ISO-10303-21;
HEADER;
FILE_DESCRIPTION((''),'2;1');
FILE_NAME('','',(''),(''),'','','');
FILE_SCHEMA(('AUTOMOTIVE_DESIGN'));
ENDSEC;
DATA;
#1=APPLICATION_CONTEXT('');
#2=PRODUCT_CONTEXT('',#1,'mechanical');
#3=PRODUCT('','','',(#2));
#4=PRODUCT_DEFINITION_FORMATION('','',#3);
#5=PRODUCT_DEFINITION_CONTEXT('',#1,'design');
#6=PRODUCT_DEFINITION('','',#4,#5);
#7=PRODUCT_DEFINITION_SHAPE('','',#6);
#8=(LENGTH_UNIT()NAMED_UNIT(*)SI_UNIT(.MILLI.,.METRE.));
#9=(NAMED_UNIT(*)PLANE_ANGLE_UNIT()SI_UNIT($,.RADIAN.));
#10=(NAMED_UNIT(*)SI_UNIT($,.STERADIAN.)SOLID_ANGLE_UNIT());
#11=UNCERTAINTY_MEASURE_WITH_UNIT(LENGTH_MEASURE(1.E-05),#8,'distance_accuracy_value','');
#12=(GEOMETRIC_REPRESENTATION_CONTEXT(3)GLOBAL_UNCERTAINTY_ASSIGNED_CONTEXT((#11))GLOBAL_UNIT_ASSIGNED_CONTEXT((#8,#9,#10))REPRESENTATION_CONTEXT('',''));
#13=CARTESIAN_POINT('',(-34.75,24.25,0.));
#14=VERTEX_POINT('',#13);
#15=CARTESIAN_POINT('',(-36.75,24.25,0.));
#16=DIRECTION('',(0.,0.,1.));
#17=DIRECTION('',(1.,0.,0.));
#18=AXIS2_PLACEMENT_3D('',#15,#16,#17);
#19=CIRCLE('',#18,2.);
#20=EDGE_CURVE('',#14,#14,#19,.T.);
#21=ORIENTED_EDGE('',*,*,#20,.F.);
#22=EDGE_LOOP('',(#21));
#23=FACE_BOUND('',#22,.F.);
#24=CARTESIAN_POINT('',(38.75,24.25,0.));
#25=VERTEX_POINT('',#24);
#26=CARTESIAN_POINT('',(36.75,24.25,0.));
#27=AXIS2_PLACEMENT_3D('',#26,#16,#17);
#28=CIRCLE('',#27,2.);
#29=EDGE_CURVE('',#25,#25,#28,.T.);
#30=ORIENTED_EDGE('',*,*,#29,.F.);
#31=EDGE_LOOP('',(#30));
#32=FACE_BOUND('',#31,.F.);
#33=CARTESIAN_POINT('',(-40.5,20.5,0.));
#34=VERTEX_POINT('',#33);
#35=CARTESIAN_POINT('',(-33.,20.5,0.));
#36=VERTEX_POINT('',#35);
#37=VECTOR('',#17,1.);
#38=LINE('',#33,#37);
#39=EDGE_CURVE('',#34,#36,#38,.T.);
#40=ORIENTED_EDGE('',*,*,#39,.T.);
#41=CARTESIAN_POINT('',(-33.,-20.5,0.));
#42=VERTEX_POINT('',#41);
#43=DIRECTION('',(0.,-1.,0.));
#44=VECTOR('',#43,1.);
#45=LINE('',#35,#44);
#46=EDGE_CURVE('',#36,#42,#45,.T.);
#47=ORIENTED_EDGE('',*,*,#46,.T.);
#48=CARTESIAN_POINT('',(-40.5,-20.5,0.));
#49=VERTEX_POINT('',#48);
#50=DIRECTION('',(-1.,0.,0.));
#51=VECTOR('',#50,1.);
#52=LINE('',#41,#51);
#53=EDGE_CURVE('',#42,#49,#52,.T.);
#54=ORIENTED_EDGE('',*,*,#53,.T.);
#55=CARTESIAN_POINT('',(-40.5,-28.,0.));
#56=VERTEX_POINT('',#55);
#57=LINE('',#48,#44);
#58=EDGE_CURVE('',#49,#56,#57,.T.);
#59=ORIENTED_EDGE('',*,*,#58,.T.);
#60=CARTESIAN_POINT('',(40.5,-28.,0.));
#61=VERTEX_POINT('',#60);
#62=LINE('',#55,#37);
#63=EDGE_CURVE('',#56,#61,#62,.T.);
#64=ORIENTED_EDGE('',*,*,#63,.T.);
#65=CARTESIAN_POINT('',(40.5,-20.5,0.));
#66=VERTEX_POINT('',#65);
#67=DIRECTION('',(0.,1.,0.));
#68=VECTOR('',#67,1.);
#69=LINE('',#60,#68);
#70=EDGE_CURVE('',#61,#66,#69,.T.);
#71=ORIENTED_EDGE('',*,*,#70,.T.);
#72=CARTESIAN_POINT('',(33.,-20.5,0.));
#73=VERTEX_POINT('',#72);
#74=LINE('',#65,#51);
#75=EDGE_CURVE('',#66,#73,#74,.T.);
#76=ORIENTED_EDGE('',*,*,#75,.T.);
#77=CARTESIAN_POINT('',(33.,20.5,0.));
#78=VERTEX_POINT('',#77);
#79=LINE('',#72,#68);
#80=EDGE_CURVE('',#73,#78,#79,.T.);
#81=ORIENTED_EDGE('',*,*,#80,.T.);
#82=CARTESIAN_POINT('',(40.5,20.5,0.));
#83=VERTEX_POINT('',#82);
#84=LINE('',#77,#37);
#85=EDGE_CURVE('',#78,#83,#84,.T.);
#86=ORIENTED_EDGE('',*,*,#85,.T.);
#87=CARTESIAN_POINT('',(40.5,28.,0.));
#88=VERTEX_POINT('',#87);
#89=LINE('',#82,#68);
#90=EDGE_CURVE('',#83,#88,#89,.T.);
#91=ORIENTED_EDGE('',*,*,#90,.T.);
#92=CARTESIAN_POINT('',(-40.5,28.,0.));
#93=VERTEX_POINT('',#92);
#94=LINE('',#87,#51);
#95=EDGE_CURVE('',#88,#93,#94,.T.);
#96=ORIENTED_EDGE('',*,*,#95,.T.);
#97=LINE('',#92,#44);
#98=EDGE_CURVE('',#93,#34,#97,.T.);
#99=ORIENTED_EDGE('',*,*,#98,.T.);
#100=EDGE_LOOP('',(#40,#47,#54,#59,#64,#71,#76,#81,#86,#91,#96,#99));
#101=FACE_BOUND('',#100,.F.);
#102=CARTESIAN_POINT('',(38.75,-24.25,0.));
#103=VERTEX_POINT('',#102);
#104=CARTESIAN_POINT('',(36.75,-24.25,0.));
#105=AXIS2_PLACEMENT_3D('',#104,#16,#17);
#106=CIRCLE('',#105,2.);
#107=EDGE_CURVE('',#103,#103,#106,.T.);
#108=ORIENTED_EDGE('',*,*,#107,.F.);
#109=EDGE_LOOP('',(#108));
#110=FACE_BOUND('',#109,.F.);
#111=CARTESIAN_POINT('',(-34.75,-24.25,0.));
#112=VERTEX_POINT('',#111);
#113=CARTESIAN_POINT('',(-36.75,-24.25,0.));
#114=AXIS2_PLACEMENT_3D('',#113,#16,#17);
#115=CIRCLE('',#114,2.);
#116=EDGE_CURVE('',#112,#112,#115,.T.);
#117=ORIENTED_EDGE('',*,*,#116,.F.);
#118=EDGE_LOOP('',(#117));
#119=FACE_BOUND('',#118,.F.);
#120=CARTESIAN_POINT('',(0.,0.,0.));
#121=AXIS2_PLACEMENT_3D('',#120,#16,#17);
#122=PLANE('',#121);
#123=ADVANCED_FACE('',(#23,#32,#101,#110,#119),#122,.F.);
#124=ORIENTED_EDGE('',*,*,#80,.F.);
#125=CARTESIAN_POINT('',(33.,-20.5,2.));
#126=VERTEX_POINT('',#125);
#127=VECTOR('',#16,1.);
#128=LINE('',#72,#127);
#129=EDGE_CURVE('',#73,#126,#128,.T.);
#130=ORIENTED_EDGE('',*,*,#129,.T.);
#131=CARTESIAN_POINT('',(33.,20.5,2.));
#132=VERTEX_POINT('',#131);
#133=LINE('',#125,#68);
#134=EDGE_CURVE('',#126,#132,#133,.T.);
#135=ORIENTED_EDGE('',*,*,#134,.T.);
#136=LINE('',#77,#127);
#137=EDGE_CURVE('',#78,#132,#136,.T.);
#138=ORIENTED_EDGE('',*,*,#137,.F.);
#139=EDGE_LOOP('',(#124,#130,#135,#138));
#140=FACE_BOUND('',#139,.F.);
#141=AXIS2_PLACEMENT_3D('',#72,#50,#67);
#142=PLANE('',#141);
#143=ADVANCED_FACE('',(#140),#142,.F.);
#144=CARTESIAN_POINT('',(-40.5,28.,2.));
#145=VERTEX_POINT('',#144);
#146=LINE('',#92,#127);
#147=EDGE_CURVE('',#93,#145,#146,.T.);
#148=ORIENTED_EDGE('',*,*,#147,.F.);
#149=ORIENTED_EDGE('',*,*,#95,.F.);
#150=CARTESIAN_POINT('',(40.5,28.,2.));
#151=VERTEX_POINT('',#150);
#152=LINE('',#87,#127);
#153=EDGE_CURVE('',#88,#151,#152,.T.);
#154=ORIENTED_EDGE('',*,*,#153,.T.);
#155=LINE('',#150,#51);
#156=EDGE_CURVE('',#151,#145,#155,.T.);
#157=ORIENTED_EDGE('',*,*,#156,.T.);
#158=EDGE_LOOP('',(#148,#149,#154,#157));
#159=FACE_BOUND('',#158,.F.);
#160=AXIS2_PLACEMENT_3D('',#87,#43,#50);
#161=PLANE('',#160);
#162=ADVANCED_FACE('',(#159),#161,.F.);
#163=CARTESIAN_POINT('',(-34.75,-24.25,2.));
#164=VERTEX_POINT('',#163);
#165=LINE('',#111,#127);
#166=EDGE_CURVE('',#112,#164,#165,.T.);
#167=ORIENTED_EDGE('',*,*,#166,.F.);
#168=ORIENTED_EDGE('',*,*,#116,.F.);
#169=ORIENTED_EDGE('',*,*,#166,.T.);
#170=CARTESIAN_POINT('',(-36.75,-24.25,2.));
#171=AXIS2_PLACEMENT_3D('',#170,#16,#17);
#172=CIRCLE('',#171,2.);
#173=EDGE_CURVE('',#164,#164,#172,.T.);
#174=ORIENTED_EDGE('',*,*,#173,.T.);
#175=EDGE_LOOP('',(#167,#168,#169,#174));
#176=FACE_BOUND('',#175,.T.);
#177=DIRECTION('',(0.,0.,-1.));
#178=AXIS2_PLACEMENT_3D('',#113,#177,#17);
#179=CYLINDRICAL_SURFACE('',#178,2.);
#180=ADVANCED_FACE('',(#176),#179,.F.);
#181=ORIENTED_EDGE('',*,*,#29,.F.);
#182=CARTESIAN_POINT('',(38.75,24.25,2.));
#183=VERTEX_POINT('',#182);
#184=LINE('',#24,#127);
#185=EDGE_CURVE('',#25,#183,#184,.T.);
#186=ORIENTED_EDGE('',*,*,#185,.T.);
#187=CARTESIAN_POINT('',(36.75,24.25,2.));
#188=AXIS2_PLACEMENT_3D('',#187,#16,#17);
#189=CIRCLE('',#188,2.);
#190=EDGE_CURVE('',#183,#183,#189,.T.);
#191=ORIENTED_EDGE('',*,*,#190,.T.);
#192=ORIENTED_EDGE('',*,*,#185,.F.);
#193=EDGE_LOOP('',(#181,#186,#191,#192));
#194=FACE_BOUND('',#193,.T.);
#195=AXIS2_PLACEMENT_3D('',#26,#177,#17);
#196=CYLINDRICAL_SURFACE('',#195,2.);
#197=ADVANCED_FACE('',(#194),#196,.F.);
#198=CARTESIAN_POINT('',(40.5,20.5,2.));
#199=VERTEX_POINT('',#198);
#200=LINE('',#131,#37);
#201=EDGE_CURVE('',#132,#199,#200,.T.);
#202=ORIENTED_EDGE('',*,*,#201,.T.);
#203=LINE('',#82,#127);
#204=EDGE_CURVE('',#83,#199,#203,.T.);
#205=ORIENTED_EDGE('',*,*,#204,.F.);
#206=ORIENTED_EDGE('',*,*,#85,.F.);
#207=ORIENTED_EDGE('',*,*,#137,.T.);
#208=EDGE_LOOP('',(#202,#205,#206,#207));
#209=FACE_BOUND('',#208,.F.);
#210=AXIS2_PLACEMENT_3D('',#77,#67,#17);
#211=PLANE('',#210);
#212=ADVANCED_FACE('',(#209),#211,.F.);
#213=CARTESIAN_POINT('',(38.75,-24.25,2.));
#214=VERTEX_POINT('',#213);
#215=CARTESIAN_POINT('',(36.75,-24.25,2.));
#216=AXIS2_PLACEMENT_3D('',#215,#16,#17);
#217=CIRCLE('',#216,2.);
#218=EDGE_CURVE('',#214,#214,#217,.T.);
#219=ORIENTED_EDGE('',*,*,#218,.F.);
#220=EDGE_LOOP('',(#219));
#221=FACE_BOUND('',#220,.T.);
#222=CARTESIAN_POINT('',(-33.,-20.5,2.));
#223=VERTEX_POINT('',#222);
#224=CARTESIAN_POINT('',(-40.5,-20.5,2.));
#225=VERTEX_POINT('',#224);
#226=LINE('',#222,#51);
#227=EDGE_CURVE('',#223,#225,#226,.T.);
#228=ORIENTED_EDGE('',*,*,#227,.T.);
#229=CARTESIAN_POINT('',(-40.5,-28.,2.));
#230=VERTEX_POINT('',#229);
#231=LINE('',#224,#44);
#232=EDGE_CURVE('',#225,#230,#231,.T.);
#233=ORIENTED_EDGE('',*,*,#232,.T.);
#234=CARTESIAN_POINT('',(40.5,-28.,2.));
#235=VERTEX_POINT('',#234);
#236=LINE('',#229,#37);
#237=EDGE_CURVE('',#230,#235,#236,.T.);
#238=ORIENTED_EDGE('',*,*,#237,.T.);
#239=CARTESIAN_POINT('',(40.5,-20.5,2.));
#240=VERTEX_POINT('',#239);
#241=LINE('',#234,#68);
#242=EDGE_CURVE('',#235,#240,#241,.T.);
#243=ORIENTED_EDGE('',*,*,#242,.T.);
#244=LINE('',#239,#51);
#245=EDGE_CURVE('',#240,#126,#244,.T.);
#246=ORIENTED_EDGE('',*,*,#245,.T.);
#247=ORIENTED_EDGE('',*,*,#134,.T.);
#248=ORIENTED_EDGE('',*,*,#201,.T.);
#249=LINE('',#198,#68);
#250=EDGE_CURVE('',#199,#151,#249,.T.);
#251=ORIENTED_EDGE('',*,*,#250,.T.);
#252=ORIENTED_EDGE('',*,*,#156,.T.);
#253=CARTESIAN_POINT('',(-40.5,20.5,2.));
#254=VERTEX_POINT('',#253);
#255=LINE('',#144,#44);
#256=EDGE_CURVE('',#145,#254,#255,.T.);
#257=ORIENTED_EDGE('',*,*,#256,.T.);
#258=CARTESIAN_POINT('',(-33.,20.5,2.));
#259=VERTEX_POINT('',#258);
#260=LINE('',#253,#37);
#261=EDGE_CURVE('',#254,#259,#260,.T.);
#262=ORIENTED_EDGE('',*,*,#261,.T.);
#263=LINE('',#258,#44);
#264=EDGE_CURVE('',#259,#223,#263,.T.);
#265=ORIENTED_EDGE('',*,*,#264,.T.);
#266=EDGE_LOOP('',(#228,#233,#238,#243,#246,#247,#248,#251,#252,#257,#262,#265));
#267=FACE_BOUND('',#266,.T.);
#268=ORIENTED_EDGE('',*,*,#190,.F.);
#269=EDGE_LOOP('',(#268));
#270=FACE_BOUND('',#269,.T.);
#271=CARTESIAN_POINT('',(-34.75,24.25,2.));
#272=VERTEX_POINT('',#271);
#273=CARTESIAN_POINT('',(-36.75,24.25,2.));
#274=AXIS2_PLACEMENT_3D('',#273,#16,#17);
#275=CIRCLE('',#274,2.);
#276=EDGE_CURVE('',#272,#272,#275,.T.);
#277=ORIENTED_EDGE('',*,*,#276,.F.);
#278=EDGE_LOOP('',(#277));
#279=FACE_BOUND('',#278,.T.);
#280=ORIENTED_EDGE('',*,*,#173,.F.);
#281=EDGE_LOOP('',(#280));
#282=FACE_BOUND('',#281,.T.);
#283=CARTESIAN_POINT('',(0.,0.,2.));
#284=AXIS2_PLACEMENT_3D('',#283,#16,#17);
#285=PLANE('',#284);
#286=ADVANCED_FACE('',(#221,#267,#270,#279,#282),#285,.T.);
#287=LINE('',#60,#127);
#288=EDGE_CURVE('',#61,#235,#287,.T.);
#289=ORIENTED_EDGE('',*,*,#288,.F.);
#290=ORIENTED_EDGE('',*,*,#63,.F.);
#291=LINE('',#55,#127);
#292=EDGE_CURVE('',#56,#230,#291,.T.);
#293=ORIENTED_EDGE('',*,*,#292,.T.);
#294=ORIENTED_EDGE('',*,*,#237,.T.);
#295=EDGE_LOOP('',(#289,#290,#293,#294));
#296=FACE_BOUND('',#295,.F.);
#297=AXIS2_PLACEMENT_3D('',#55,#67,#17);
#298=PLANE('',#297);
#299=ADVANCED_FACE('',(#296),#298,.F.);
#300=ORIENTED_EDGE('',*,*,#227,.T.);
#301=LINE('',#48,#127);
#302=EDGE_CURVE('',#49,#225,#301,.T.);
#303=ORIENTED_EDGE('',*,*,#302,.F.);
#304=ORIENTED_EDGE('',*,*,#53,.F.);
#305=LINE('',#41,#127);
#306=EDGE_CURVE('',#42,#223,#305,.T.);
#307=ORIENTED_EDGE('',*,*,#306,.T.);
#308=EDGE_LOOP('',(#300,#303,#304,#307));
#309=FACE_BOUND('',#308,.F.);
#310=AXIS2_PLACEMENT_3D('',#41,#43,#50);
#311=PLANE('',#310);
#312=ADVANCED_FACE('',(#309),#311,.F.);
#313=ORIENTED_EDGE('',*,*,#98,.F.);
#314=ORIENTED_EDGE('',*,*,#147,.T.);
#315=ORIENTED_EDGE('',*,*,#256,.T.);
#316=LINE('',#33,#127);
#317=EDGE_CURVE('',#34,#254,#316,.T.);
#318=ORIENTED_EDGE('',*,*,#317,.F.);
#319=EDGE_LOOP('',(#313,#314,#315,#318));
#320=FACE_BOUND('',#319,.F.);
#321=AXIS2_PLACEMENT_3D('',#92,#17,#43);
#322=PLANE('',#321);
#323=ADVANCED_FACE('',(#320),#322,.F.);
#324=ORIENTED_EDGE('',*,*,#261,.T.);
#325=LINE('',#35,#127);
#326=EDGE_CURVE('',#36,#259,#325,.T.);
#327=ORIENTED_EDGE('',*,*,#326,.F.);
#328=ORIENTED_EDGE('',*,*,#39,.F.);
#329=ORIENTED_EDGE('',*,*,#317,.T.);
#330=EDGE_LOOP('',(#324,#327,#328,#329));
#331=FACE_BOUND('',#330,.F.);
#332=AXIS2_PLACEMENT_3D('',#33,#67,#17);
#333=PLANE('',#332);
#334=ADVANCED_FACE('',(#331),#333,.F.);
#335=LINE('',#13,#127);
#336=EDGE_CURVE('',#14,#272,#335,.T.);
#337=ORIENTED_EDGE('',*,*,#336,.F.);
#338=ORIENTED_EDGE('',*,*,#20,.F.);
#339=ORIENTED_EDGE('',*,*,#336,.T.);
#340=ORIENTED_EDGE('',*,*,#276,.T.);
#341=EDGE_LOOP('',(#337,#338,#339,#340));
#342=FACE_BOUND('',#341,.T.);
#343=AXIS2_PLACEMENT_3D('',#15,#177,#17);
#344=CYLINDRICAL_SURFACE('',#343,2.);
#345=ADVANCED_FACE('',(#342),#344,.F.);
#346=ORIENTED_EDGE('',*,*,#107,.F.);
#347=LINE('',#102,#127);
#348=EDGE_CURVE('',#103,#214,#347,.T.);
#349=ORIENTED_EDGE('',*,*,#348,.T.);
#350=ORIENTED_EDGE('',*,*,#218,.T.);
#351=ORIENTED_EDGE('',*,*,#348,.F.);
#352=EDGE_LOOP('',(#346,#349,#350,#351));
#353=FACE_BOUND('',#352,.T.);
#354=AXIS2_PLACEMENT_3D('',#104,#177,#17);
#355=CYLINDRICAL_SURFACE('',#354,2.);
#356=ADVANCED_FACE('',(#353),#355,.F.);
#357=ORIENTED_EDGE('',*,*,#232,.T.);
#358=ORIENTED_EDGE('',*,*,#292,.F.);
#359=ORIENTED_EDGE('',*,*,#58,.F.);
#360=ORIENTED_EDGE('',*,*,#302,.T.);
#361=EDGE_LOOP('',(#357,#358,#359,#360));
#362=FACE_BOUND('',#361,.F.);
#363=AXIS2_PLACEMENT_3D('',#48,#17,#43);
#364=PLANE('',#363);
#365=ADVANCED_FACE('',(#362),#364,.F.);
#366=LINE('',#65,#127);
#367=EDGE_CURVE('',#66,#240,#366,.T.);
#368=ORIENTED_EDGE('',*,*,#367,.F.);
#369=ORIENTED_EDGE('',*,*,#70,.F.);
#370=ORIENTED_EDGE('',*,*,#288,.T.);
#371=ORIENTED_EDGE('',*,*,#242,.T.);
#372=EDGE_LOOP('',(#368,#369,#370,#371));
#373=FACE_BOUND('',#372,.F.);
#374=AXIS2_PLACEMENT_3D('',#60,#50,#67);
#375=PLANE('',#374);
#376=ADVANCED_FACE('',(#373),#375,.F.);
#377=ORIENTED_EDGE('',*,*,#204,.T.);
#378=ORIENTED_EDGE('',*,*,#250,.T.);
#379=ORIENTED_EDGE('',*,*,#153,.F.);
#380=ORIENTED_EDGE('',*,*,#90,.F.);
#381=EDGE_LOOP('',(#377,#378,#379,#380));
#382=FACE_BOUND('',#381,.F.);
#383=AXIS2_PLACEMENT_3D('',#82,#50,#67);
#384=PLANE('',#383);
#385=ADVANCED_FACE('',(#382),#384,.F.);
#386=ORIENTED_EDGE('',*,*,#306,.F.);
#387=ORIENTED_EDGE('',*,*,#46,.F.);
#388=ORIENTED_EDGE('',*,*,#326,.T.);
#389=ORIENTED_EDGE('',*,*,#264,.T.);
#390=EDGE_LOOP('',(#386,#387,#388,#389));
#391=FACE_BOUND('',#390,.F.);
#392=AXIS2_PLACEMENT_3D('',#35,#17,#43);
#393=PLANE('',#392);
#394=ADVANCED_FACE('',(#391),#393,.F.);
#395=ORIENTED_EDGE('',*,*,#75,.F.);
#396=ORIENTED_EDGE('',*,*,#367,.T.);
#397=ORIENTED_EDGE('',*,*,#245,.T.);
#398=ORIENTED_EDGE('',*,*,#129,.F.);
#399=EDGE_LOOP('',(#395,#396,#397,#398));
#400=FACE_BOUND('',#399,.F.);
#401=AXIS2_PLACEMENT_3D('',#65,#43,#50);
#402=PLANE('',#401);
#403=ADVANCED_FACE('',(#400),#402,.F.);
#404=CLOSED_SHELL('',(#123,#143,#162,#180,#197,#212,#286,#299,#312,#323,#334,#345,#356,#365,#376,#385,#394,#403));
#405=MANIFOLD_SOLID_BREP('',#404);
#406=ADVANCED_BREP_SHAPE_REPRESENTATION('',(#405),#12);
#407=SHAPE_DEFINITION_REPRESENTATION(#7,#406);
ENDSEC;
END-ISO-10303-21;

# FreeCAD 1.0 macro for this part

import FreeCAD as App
import Part
import Sketcher
from FreeCAD import Vector


def add_polygon(sketch, points):
    """Adds a closed chain of lines whose ends are joined by coincident constraints."""
    first, n = sketch.GeometryCount, len(points)
    for a, b in zip(points, points[1:] + points[:1]):
        sketch.addGeometry(Part.LineSegment(App.Vector(*a, 0), App.Vector(*b, 0)), False)
    for i in range(n):
        sketch.addConstraint(Sketcher.Constraint("Coincident", first + i, 2, first + (i + 1) % n, 1))

doc = App.newDocument("Part")
body = doc.addObject("PartDesign::Body", "Body")

# Sketch on XY plane
sketch1 = body.newObject("Sketcher::SketchObject", "Sketch")
sketch1.AttachmentSupport = (doc.getObject("XY_Plane"), [""])
sketch1.MapMode = "FlatFace"
add_polygon(sketch1, [(-33, 20.5), (-33, -20.5), (-40.5, -20.5), (-40.5, -28), (40.5, -28), (40.5, -20.5), (33, -20.5), (33, 20.5), (40.5, 20.5), (40.5, 28), (-40.5, 28), (-40.5, 20.5)])  # lines 0-11
sketch1.addGeometry(Part.Circle(Vector(-36.8, -24.2, 0), Vector(0, 0, 1), 2), False)  # 12
sketch1.addGeometry(Part.Circle(Vector(36.8, -24.2, 0), Vector(0, 0, 1), 2), False)  # 13
sketch1.addGeometry(Part.Circle(Vector(-36.8, 24.2, 0), Vector(0, 0, 1), 2), False)  # 14
sketch1.addGeometry(Part.Circle(Vector(36.8, 24.2, 0), Vector(0, 0, 1), 2), False)  # 15
sketch1.addConstraint([
    Sketcher.Constraint("Vertical", 0),
    Sketcher.Constraint("Horizontal", 1),
    Sketcher.Constraint("Vertical", 2),
    Sketcher.Constraint("Horizontal", 3),
    Sketcher.Constraint("Vertical", 4),
    Sketcher.Constraint("Horizontal", 5),
    Sketcher.Constraint("Vertical", 6),
    Sketcher.Constraint("Horizontal", 7),
    Sketcher.Constraint("Vertical", 8),
    Sketcher.Constraint("Horizontal", 9),
    Sketcher.Constraint("Vertical", 10),
    Sketcher.Constraint("Horizontal", 11),
    Sketcher.Constraint("Equal", 12, 13),
    Sketcher.Constraint("Equal", 13, 14),
    Sketcher.Constraint("Equal", 14, 15),
    Sketcher.Constraint("Symmetric", 13, 3, 14, 3, -1, 1),
    Sketcher.Constraint("Symmetric", 12, 3, 15, 3, -1, 1),
    Sketcher.Constraint("Symmetric", 0, 2, 6, 2, -1, 1),
    Sketcher.Constraint("Symmetric", 2, 2, 8, 2, -1, 1),
    Sketcher.Constraint("Symmetric", 4, 2, 10, 2, -1, 1),
    Sketcher.Constraint("Symmetric", 12, 3, 13, 3, -2),
    Sketcher.Constraint("Symmetric", 1, 2, 4, 2, -2),
    Sketcher.Constraint("Equal", 11, 2),
    Sketcher.Constraint("Diameter", 12, 4.0),
    Sketcher.Constraint("DistanceX", 3, 1, 3, 2, 81.0),
    Sketcher.Constraint("DistanceY", 0, 2, 0, 1, 41.0),
    Sketcher.Constraint("DistanceX", 1, 2, 1, 1, 7.5),
    Sketcher.Constraint("DistanceX", 12, 3, 13, 3, 73.5),
    Sketcher.Constraint("DistanceY", 12, 3, 14, 3, 48.5),
])
pad1 = body.newObject("PartDesign::Pad", "Pad")
pad1.Profile = sketch1
pad1.Length = 2

doc.recompute()
